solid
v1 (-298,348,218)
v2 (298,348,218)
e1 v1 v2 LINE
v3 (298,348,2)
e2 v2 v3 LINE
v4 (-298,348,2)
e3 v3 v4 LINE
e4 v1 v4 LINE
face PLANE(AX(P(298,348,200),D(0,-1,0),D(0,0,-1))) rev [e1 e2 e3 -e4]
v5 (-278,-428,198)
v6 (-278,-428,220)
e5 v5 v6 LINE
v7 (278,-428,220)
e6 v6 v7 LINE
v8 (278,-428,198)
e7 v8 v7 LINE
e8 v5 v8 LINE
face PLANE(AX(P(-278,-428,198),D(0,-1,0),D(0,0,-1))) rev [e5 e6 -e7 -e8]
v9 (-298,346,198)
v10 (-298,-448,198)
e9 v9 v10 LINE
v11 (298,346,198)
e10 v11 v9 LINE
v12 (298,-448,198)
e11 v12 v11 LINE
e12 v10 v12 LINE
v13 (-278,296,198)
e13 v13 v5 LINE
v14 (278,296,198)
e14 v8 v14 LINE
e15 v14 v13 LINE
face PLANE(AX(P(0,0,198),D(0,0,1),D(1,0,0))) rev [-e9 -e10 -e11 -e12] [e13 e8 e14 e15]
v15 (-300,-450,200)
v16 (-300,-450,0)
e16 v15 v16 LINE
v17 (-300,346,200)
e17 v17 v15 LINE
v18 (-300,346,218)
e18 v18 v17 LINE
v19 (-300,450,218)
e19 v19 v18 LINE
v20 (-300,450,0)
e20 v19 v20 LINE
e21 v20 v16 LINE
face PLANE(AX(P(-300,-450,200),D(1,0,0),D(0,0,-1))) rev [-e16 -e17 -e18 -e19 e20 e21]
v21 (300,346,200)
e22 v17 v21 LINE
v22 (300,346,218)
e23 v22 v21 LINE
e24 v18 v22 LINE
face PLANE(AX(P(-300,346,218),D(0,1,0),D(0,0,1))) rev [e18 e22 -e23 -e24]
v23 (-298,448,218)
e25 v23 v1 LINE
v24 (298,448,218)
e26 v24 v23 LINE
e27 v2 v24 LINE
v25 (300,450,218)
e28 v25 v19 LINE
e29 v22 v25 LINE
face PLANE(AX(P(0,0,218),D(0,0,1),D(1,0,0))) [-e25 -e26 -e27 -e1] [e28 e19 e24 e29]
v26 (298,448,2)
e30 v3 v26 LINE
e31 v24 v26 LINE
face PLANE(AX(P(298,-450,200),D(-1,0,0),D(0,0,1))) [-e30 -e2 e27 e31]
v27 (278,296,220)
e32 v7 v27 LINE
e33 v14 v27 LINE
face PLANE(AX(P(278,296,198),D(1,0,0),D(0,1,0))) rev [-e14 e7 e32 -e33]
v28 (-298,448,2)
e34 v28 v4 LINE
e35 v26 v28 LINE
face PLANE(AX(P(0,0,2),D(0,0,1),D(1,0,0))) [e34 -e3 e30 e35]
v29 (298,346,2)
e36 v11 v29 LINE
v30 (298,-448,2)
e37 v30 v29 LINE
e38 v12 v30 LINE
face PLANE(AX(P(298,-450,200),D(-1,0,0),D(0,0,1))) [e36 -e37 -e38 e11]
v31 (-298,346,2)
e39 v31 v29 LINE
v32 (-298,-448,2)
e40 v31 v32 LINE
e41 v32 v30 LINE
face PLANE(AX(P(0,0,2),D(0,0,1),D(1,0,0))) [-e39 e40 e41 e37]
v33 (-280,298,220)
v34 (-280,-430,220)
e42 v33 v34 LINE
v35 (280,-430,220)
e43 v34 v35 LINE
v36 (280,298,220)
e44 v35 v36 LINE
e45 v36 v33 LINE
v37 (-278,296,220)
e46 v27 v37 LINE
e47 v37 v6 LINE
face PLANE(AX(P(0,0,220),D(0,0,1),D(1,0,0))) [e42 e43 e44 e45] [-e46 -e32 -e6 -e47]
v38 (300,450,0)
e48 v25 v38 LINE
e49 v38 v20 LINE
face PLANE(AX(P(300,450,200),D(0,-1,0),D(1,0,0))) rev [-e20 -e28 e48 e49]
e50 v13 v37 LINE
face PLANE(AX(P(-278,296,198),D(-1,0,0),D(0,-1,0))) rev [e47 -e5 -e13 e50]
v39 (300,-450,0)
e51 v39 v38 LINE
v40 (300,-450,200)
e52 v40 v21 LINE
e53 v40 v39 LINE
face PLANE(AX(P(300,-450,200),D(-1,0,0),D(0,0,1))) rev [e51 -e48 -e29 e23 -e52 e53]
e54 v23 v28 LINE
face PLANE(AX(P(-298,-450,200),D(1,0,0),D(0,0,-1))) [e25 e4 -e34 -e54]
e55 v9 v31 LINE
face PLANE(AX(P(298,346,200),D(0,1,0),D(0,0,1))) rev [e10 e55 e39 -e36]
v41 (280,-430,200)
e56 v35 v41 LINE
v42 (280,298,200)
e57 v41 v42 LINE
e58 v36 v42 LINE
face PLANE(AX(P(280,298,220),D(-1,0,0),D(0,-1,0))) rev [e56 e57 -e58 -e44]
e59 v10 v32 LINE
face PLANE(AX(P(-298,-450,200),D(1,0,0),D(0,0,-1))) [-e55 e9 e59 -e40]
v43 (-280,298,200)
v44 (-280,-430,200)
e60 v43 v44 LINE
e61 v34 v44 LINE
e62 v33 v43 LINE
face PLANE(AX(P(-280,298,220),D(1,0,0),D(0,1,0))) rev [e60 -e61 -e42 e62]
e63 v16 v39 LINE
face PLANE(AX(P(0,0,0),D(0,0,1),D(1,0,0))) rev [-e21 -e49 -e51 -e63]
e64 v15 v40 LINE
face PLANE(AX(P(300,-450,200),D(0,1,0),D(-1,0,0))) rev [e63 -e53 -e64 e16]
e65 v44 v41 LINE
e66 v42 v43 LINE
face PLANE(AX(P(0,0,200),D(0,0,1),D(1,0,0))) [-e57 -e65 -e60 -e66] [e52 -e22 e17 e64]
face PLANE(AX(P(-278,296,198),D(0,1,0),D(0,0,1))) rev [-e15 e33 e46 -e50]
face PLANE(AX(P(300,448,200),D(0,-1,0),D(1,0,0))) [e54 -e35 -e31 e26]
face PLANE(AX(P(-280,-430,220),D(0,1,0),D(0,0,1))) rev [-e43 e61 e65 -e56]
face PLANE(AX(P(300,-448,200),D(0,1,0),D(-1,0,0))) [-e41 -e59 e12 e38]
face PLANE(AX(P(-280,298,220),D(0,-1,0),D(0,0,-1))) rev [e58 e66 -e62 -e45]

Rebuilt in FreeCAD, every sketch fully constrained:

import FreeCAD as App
import Part
import Sketcher


def faces_at(feature, points):
    """Names of the faces that lie closest to the given points."""
    faces = feature.Shape.Faces
    near = lambda p: min(range(len(faces)), key=lambda i: faces[i].distToShape(Part.Vertex(*p))[0])
    return sorted({f"Face{near(p) + 1}" for p in points})

doc = App.newDocument("Part")
body = doc.addObject("PartDesign::Body", "Body")

# Sketch on XY plane
sketch1 = body.newObject("Sketcher::SketchObject", "Sketch")
sketch1.AttachmentSupport = (doc.getObject("XY_Plane"), [""])
sketch1.MapMode = "FlatFace"
sketch1.addGeometry(Part.LineSegment(App.Vector(-300, 450, 0), App.Vector(-300, -450, 0)), False)
sketch1.addGeometry(Part.LineSegment(App.Vector(-300, -450, 0), App.Vector(300, -450, 0)), False)
sketch1.addGeometry(Part.LineSegment(App.Vector(300, -450, 0), App.Vector(300, 450, 0)), False)
sketch1.addGeometry(Part.LineSegment(App.Vector(300, 450, 0), App.Vector(-300, 450, 0)), False)
sketch1.addConstraint(Sketcher.Constraint("Coincident", 0, 2, 1, 1))
sketch1.addConstraint(Sketcher.Constraint("Coincident", 1, 2, 2, 1))
sketch1.addConstraint(Sketcher.Constraint("Coincident", 2, 2, 3, 1))
sketch1.addConstraint(Sketcher.Constraint("Coincident", 3, 2, 0, 1))
sketch1.addConstraint(Sketcher.Constraint("Vertical", 0))
sketch1.addConstraint(Sketcher.Constraint("Horizontal", 1))
sketch1.addConstraint(Sketcher.Constraint("Vertical", 2))
sketch1.addConstraint(Sketcher.Constraint("Horizontal", 3))
sketch1.addConstraint(Sketcher.Constraint("Symmetric", 0, 2, 2, 2, -1, 1))
sketch1.addConstraint(Sketcher.Constraint("DistanceX", 1, 1, 1, 2, 600.0))
sketch1.addConstraint(Sketcher.Constraint("DistanceY", 0, 2, 0, 1, 900.0))
pad1 = body.newObject("PartDesign::Pad", "Pad")
pad1.Profile = sketch1
pad1.Length = 200
doc.recompute()

thickness = body.newObject("PartDesign::Thickness", "Thickness")
thickness.Base = (pad1, faces_at(pad1, [(0, 0, 200)]))
thickness.Value = 2
thickness.Reversed = True
thickness.Join = "Intersection"

# Sketch on XY plane
sketch2 = body.newObject("Sketcher::SketchObject", "Sketch001")
sketch2.AttachmentSupport = (doc.getObject("XY_Plane"), [""])
sketch2.MapMode = "FlatFace"
sketch2.AttachmentOffset = App.Placement(App.Vector(0, 0, 2), App.Rotation())
sketch2.addGeometry(Part.LineSegment(App.Vector(-298, 348, 0), App.Vector(-298, 346, 0)), False)
sketch2.addGeometry(Part.LineSegment(App.Vector(-298, 346, 0), App.Vector(298, 346, 0)), False)
sketch2.addGeometry(Part.LineSegment(App.Vector(298, 346, 0), App.Vector(298, 348, 0)), False)
sketch2.addGeometry(Part.LineSegment(App.Vector(298, 348, 0), App.Vector(-298, 348, 0)), False)
sketch2.addConstraint(Sketcher.Constraint("Coincident", 0, 2, 1, 1))
sketch2.addConstraint(Sketcher.Constraint("Coincident", 1, 2, 2, 1))
sketch2.addConstraint(Sketcher.Constraint("Coincident", 2, 2, 3, 1))
sketch2.addConstraint(Sketcher.Constraint("Coincident", 3, 2, 0, 1))
sketch2.addConstraint(Sketcher.Constraint("Vertical", 0))
sketch2.addConstraint(Sketcher.Constraint("Horizontal", 1))
sketch2.addConstraint(Sketcher.Constraint("Vertical", 2))
sketch2.addConstraint(Sketcher.Constraint("Horizontal", 3))
sketch2.addConstraint(Sketcher.Constraint("DistanceX", 1, 1, 1, 2, 596.0))
sketch2.addConstraint(Sketcher.Constraint("DistanceY", 0, 2, 0, 1, 2.0))
sketch2.addConstraint(Sketcher.Constraint("DistanceX", 0, 2, -1, 1, 298.0))
sketch2.addConstraint(Sketcher.Constraint("DistanceY", -1, 1, 0, 2, 346.0))
pad2 = body.newObject("PartDesign::Pad", "Pad001")
pad2.Profile = sketch2
pad2.Length = 198

# Sketch on XY plane
sketch3 = body.newObject("Sketcher::SketchObject", "Sketch002")
sketch3.AttachmentSupport = (doc.getObject("XY_Plane"), [""])
sketch3.MapMode = "FlatFace"
sketch3.AttachmentOffset = App.Placement(App.Vector(0, 0, 200), App.Rotation())
sketch3.addGeometry(Part.LineSegment(App.Vector(-298, 346, 0), App.Vector(-298, -448, 0)), False)
sketch3.addGeometry(Part.LineSegment(App.Vector(-298, -448, 0), App.Vector(298, -448, 0)), False)
sketch3.addGeometry(Part.LineSegment(App.Vector(298, -448, 0), App.Vector(298, 346, 0)), False)
sketch3.addGeometry(Part.LineSegment(App.Vector(298, 346, 0), App.Vector(-298, 346, 0)), False)
sketch3.addGeometry(Part.LineSegment(App.Vector(278, -428, 0), App.Vector(-278, -428, 0)), False)
sketch3.addGeometry(Part.LineSegment(App.Vector(-278, -428, 0), App.Vector(-278, 296, 0)), False)
sketch3.addGeometry(Part.LineSegment(App.Vector(-278, 296, 0), App.Vector(278, 296, 0)), False)
sketch3.addGeometry(Part.LineSegment(App.Vector(278, 296, 0), App.Vector(278, -428, 0)), False)
sketch3.addConstraint(Sketcher.Constraint("Coincident", 0, 2, 1, 1))
sketch3.addConstraint(Sketcher.Constraint("Coincident", 1, 2, 2, 1))
sketch3.addConstraint(Sketcher.Constraint("Coincident", 2, 2, 3, 1))
sketch3.addConstraint(Sketcher.Constraint("Coincident", 3, 2, 0, 1))
sketch3.addConstraint(Sketcher.Constraint("Coincident", 4, 2, 5, 1))
sketch3.addConstraint(Sketcher.Constraint("Coincident", 5, 2, 6, 1))
sketch3.addConstraint(Sketcher.Constraint("Coincident", 6, 2, 7, 1))
sketch3.addConstraint(Sketcher.Constraint("Coincident", 7, 2, 4, 1))
sketch3.addConstraint(Sketcher.Constraint("Vertical", 0))
sketch3.addConstraint(Sketcher.Constraint("Horizontal", 1))
sketch3.addConstraint(Sketcher.Constraint("Vertical", 2))
sketch3.addConstraint(Sketcher.Constraint("Horizontal", 3))
sketch3.addConstraint(Sketcher.Constraint("Horizontal", 4))
sketch3.addConstraint(Sketcher.Constraint("Vertical", 5))
sketch3.addConstraint(Sketcher.Constraint("Horizontal", 6))
sketch3.addConstraint(Sketcher.Constraint("Vertical", 7))
sketch3.addConstraint(Sketcher.Constraint("DistanceX", 1, 1, 1, 2, 596.0))
sketch3.addConstraint(Sketcher.Constraint("DistanceX", 4, 2, 4, 1, 556.0))
sketch3.addConstraint(Sketcher.Constraint("DistanceY", 0, 2, 0, 1, 794.0))
sketch3.addConstraint(Sketcher.Constraint("DistanceY", 5, 1, 5, 2, 724.0))
sketch3.addConstraint(Sketcher.Constraint("DistanceX", 0, 2, -1, 1, 298.0))
sketch3.addConstraint(Sketcher.Constraint("DistanceY", 0, 2, -1, 1, 448.0))
sketch3.addConstraint(Sketcher.Constraint("DistanceX", 4, 2, -1, 1, 278.0))
sketch3.addConstraint(Sketcher.Constraint("DistanceY", 4, 2, -1, 1, 428.0))
pad3 = body.newObject("PartDesign::Pad", "Pad002")
pad3.Profile = sketch3
pad3.Length = 2
pad3.Reversed = True

# Sketch on XY plane
sketch4 = body.newObject("Sketcher::SketchObject", "Sketch003")
sketch4.AttachmentSupport = (doc.getObject("XY_Plane"), [""])
sketch4.MapMode = "FlatFace"
sketch4.AttachmentOffset = App.Placement(App.Vector(0, 0, 200), App.Rotation())
sketch4.addGeometry(Part.LineSegment(App.Vector(-280, 298, 0), App.Vector(-280, -430, 0)), False)
sketch4.addGeometry(Part.LineSegment(App.Vector(-280, -430, 0), App.Vector(280, -430, 0)), False)
sketch4.addGeometry(Part.LineSegment(App.Vector(280, -430, 0), App.Vector(280, 298, 0)), False)
sketch4.addGeometry(Part.LineSegment(App.Vector(280, 298, 0), App.Vector(-280, 298, 0)), False)
sketch4.addGeometry(Part.LineSegment(App.Vector(278, -428, 0), App.Vector(-278, -428, 0)), False)
sketch4.addGeometry(Part.LineSegment(App.Vector(-278, -428, 0), App.Vector(-278, 296, 0)), False)
sketch4.addGeometry(Part.LineSegment(App.Vector(-278, 296, 0), App.Vector(278, 296, 0)), False)
sketch4.addGeometry(Part.LineSegment(App.Vector(278, 296, 0), App.Vector(278, -428, 0)), False)
sketch4.addConstraint(Sketcher.Constraint("Coincident", 0, 2, 1, 1))
sketch4.addConstraint(Sketcher.Constraint("Coincident", 1, 2, 2, 1))
sketch4.addConstraint(Sketcher.Constraint("Coincident", 2, 2, 3, 1))
sketch4.addConstraint(Sketcher.Constraint("Coincident", 3, 2, 0, 1))
sketch4.addConstraint(Sketcher.Constraint("Coincident", 4, 2, 5, 1))
sketch4.addConstraint(Sketcher.Constraint("Coincident", 5, 2, 6, 1))
sketch4.addConstraint(Sketcher.Constraint("Coincident", 6, 2, 7, 1))
sketch4.addConstraint(Sketcher.Constraint("Coincident", 7, 2, 4, 1))
sketch4.addConstraint(Sketcher.Constraint("Vertical", 0))
sketch4.addConstraint(Sketcher.Constraint("Horizontal", 1))
sketch4.addConstraint(Sketcher.Constraint("Vertical", 2))
sketch4.addConstraint(Sketcher.Constraint("Horizontal", 3))
sketch4.addConstraint(Sketcher.Constraint("Horizontal", 4))
sketch4.addConstraint(Sketcher.Constraint("Vertical", 5))
sketch4.addConstraint(Sketcher.Constraint("Horizontal", 6))
sketch4.addConstraint(Sketcher.Constraint("Vertical", 7))
sketch4.addConstraint(Sketcher.Constraint("DistanceX", 1, 1, 1, 2, 560.0))
sketch4.addConstraint(Sketcher.Constraint("DistanceX", 4, 2, 4, 1, 556.0))
sketch4.addConstraint(Sketcher.Constraint("DistanceY", 0, 2, 0, 1, 728.0))
sketch4.addConstraint(Sketcher.Constraint("DistanceY", 5, 1, 5, 2, 724.0))
sketch4.addConstraint(Sketcher.Constraint("DistanceX", 0, 2, -1, 1, 280.0))
sketch4.addConstraint(Sketcher.Constraint("DistanceY", 0, 2, -1, 1, 430.0))
sketch4.addConstraint(Sketcher.Constraint("DistanceX", 4, 2, -1, 1, 278.0))
sketch4.addConstraint(Sketcher.Constraint("DistanceY", 4, 2, -1, 1, 428.0))
pad4 = body.newObject("PartDesign::Pad", "Pad003")
pad4.Profile = sketch4
pad4.Length = 20

# Sketch on XY plane
sketch5 = body.newObject("Sketcher::SketchObject", "Sketch004")
sketch5.AttachmentSupport = (doc.getObject("XY_Plane"), [""])
sketch5.MapMode = "FlatFace"
sketch5.AttachmentOffset = App.Placement(App.Vector(0, 0, 200), App.Rotation())
sketch5.addGeometry(Part.LineSegment(App.Vector(-300, 450, 0), App.Vector(-300, 346, 0)), False)
sketch5.addGeometry(Part.LineSegment(App.Vector(-300, 346, 0), App.Vector(300, 346, 0)), False)
sketch5.addGeometry(Part.LineSegment(App.Vector(300, 346, 0), App.Vector(300, 450, 0)), False)
sketch5.addGeometry(Part.LineSegment(App.Vector(300, 450, 0), App.Vector(-300, 450, 0)), False)
sketch5.addGeometry(Part.LineSegment(App.Vector(298, 348, 0), App.Vector(-298, 348, 0)), False)
sketch5.addGeometry(Part.LineSegment(App.Vector(-298, 348, 0), App.Vector(-298, 448, 0)), False)
sketch5.addGeometry(Part.LineSegment(App.Vector(-298, 448, 0), App.Vector(298, 448, 0)), False)
sketch5.addGeometry(Part.LineSegment(App.Vector(298, 448, 0), App.Vector(298, 348, 0)), False)
sketch5.addConstraint(Sketcher.Constraint("Coincident", 0, 2, 1, 1))
sketch5.addConstraint(Sketcher.Constraint("Coincident", 1, 2, 2, 1))
sketch5.addConstraint(Sketcher.Constraint("Coincident", 2, 2, 3, 1))
sketch5.addConstraint(Sketcher.Constraint("Coincident", 3, 2, 0, 1))
sketch5.addConstraint(Sketcher.Constraint("Coincident", 4, 2, 5, 1))
sketch5.addConstraint(Sketcher.Constraint("Coincident", 5, 2, 6, 1))
sketch5.addConstraint(Sketcher.Constraint("Coincident", 6, 2, 7, 1))
sketch5.addConstraint(Sketcher.Constraint("Coincident", 7, 2, 4, 1))
sketch5.addConstraint(Sketcher.Constraint("Vertical", 0))
sketch5.addConstraint(Sketcher.Constraint("Horizontal", 1))
sketch5.addConstraint(Sketcher.Constraint("Vertical", 2))
sketch5.addConstraint(Sketcher.Constraint("Horizontal", 3))
sketch5.addConstraint(Sketcher.Constraint("Horizontal", 4))
sketch5.addConstraint(Sketcher.Constraint("Vertical", 5))
sketch5.addConstraint(Sketcher.Constraint("Horizontal", 6))
sketch5.addConstraint(Sketcher.Constraint("Vertical", 7))
sketch5.addConstraint(Sketcher.Constraint("DistanceX", 1, 1, 1, 2, 600.0))
sketch5.addConstraint(Sketcher.Constraint("DistanceX", 4, 2, 4, 1, 596.0))
sketch5.addConstraint(Sketcher.Constraint("DistanceY", 0, 2, 0, 1, 104.0))
sketch5.addConstraint(Sketcher.Constraint("DistanceY", 5, 1, 5, 2, 100.0))
sketch5.addConstraint(Sketcher.Constraint("DistanceX", 0, 2, -1, 1, 300.0))
sketch5.addConstraint(Sketcher.Constraint("DistanceY", -1, 1, 0, 2, 346.0))
sketch5.addConstraint(Sketcher.Constraint("DistanceX", 4, 2, -1, 1, 298.0))
sketch5.addConstraint(Sketcher.Constraint("DistanceY", -1, 1, 4, 2, 348.0))
pad5 = body.newObject("PartDesign::Pad", "Pad004")
pad5.Profile = sketch5
pad5.Length = 18

doc.recompute()
